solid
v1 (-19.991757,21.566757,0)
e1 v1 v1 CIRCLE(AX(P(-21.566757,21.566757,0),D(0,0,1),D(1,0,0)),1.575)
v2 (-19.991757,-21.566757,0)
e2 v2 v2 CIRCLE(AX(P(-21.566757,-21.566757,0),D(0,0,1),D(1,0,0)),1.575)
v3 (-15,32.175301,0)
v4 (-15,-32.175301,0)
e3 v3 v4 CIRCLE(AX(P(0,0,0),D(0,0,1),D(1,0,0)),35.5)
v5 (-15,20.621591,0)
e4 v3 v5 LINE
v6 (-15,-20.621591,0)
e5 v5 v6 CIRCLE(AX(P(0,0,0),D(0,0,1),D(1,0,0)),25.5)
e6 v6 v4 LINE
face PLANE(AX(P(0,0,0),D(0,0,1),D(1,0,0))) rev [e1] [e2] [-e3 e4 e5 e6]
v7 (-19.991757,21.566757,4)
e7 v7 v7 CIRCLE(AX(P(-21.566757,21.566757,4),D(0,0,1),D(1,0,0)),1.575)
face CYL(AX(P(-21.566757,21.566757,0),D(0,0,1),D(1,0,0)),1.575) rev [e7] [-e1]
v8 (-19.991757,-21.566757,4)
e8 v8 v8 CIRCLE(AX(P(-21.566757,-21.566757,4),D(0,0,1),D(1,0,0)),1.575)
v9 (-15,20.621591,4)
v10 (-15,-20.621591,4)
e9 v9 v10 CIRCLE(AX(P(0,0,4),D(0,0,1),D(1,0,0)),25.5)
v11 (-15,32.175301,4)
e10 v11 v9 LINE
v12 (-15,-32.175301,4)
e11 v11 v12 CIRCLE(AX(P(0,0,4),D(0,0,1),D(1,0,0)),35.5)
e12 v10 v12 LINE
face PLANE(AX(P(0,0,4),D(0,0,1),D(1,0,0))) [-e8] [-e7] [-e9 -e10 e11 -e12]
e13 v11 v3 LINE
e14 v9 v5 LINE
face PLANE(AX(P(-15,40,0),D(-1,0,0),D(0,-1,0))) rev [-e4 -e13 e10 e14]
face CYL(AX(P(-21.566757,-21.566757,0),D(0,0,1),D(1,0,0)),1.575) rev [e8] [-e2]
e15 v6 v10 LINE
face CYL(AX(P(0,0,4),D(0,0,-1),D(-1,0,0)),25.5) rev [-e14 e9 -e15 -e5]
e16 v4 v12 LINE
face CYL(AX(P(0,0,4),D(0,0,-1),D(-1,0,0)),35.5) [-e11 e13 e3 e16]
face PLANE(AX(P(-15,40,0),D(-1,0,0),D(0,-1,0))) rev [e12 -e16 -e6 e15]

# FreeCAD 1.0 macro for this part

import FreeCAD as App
import Part
import Sketcher
from FreeCAD import Vector

doc = App.newDocument("Part")
body = doc.addObject("PartDesign::Body", "Body")

sketch1 = body.newObject("Sketcher::SketchObject", "Sketch")
sketch1.AttachmentSupport = (doc.getObject("XY_Plane"), [""])
sketch1.MapMode = "FlatFace"
sketch1.addGeometry(Part.Circle(Vector(0, 0, 0), Vector(0, 0, 1), 36), False)
sketch1.addGeometry(Part.Circle(Vector(0, 0, 0), Vector(0, 0, 1), 26), False)
sketch1.addConstraint(Sketcher.Constraint("Coincident", 0, 3, -1, 1))
sketch1.addConstraint(Sketcher.Constraint("Coincident", 1, 3, -1, 1))
sketch1.addConstraint(Sketcher.Constraint("Diameter", 0, 71.0))
sketch1.addConstraint(Sketcher.Constraint("Diameter", 1, 51.0))
pad1 = body.newObject("PartDesign::Pad", "Pad")
pad1.Profile = sketch1
pad1.Length = 4

sketch2 = body.newObject("Sketcher::SketchObject", "Sketch001")
sketch2.AttachmentSupport = (doc.getObject("XY_Plane"), [""])
sketch2.MapMode = "FlatFace"
sketch2.AttachmentOffset = App.Placement(Vector(0, 0, 4), App.Rotation())
sketch2.addGeometry(Part.Circle(Vector(-21.6, 21.6, 0), Vector(0, 0, 1), 1.6), False)
sketch2.addGeometry(Part.Circle(Vector(21.6, 21.6, 0), Vector(0, 0, 1), 1.6), False)
sketch2.addGeometry(Part.Circle(Vector(21.6, -21.6, 0), Vector(0, 0, 1), 1.6), False)
sketch2.addGeometry(Part.Circle(Vector(-21.6, -21.6, 0), Vector(0, 0, 1), 1.6), False)
sketch2.addConstraint(Sketcher.Constraint("Equal", 0, 1))
sketch2.addConstraint(Sketcher.Constraint("Equal", 1, 2))
sketch2.addConstraint(Sketcher.Constraint("Equal", 2, 3))
sketch2.addConstraint(Sketcher.Constraint("Symmetric", 0, 3, 2, 3, -1, 1))
sketch2.addConstraint(Sketcher.Constraint("Symmetric", 1, 3, 3, 3, -1, 1))
sketch2.addConstraint(Sketcher.Constraint("Symmetric", 0, 3, 1, 3, -2))
sketch2.addConstraint(Sketcher.Constraint("Diameter", 0, 3.15))
sketch2.addConstraint(Sketcher.Constraint("DistanceX", 0, 3, -1, 1, 21.566757))
sketch2.addConstraint(Sketcher.Constraint("DistanceY", -1, 1, 0, 3, 21.566757))
pocket1 = body.newObject("PartDesign::Pocket", "Pocket")
pocket1.Profile = sketch2
pocket1.Type = "ThroughAll"

sketch3 = body.newObject("Sketcher::SketchObject", "Sketch002")
sketch3.AttachmentSupport = (doc.getObject("XY_Plane"), [""])
sketch3.MapMode = "FlatFace"
sketch3.AttachmentOffset = App.Placement(Vector(0, 0, 4), App.Rotation())
sketch3.addGeometry(Part.LineSegment(Vector(-15, 40, 0), Vector(-15, -40, 0)), False)
sketch3.addGeometry(Part.LineSegment(Vector(-15, -40, 0), Vector(45, -40, 0)), False)
sketch3.addGeometry(Part.LineSegment(Vector(45, -40, 0), Vector(45, 40, 0)), False)
sketch3.addGeometry(Part.LineSegment(Vector(45, 40, 0), Vector(-15, 40, 0)), False)
sketch3.addConstraint(Sketcher.Constraint("Coincident", 0, 2, 1, 1))
sketch3.addConstraint(Sketcher.Constraint("Coincident", 1, 2, 2, 1))
sketch3.addConstraint(Sketcher.Constraint("Coincident", 2, 2, 3, 1))
sketch3.addConstraint(Sketcher.Constraint("Coincident", 3, 2, 0, 1))
sketch3.addConstraint(Sketcher.Constraint("Vertical", 0))
sketch3.addConstraint(Sketcher.Constraint("Horizontal", 1))
sketch3.addConstraint(Sketcher.Constraint("Vertical", 2))
sketch3.addConstraint(Sketcher.Constraint("Horizontal", 3))
sketch3.addConstraint(Sketcher.Constraint("DistanceX", 1, 1, 1, 2, 60.0))
sketch3.addConstraint(Sketcher.Constraint("DistanceY", 0, 2, 0, 1, 80.0))
sketch3.addConstraint(Sketcher.Constraint("DistanceX", 0, 2, -1, 1, 15.0))
sketch3.addConstraint(Sketcher.Constraint("DistanceY", 0, 2, -1, 1, 40.0))
pocket2 = body.newObject("PartDesign::Pocket", "Pocket001")
pocket2.Profile = sketch3
pocket2.Type = "ThroughAll"

doc.recompute()
